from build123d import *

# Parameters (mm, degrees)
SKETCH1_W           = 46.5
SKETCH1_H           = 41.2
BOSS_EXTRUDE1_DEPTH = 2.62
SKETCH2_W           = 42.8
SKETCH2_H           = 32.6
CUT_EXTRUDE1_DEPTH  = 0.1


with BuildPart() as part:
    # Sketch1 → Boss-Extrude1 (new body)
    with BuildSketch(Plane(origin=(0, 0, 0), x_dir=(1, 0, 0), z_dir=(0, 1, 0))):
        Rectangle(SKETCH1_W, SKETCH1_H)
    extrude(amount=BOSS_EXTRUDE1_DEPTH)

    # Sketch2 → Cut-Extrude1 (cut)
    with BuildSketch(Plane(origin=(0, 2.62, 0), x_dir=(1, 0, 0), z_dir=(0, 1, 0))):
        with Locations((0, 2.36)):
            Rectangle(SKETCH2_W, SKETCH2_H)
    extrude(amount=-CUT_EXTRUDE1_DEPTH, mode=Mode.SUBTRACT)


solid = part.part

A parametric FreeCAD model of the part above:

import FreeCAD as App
import Part
import Sketcher

V = App.Vector
Q = App.Units.Quantity


def add_polygon(sketch, points):
    """Adds a closed chain of lines whose ends are joined by coincident constraints."""
    first, n = sketch.GeometryCount, len(points)
    for a, b in zip(points, points[1:] + points[:1]):
        sketch.addGeometry(Part.LineSegment(App.Vector(*a, 0), App.Vector(*b, 0)), False)
    for i in range(n):
        sketch.addConstraint(Sketcher.Constraint("Coincident", first + i, 2, first + (i + 1) % n, 1))

doc = App.newDocument("Part")
body = doc.addObject("PartDesign::Body", "Body")

# Sketch on XZ plane
sketch1 = body.newObject("Sketcher::SketchObject", "Sketch")
sketch1.AttachmentSupport = (doc.getObject("XZ_Plane"), [""])
sketch1.MapMode = "FlatFace"
add_polygon(sketch1, [(-23, -21), (-23, 21), (23, 21), (23, -21)])  # lines 0-3
sketch1.addConstraint(Sketcher.Constraint("Vertical", 0))
sketch1.addConstraint(Sketcher.Constraint("Horizontal", 1))
sketch1.addConstraint(Sketcher.Constraint("Vertical", 2))
sketch1.addConstraint(Sketcher.Constraint("Horizontal", 3))
sketch1.addConstraint(Sketcher.Constraint("Symmetric", 0, 2, 2, 2, -1, 1))
sketch1.addConstraint(Sketcher.Constraint("DistanceX", 1, 1, 1, 2, Q("46.5 mm")))
sketch1.addConstraint(Sketcher.Constraint("DistanceY", 0, 1, 0, 2, Q("41.2 mm")))
pad1 = body.newObject("PartDesign::Pad", "Pad")
pad1.Profile = sketch1
pad1.Length = 2.62
pad1.Reversed = True

# Sketch on XZ plane
sketch2 = body.newObject("Sketcher::SketchObject", "Sketch001")
sketch2.AttachmentSupport = (doc.getObject("XZ_Plane"), [""])
sketch2.MapMode = "FlatFace"
sketch2.AttachmentOffset = App.Placement(V(0, 0, -2.62), App.Rotation())
add_polygon(sketch2, [(-21, -19), (-21, 14), (21, 14), (21, -19)])  # lines 0-3
sketch2.addConstraint(Sketcher.Constraint("Vertical", 0))
sketch2.addConstraint(Sketcher.Constraint("Horizontal", 1))
sketch2.addConstraint(Sketcher.Constraint("Vertical", 2))
sketch2.addConstraint(Sketcher.Constraint("Horizontal", 3))
sketch2.addConstraint(Sketcher.Constraint("DistanceX", 1, 1, 1, 2, Q("42.8 mm")))
sketch2.addConstraint(Sketcher.Constraint("DistanceY", 0, 1, 0, 2, Q("32.6 mm")))
sketch2.addConstraint(Sketcher.Constraint("DistanceX", 0, 2, -1, 1, Q("21.4 mm")))
sketch2.addConstraint(Sketcher.Constraint("DistanceY", -1, 1, 0, 2, Q("13.94 mm")))
pocket1 = body.newObject("PartDesign::Pocket", "Pocket")
pocket1.Profile = sketch2
pocket1.Length = 0.1
pocket1.Reversed = True

doc.recompute()
